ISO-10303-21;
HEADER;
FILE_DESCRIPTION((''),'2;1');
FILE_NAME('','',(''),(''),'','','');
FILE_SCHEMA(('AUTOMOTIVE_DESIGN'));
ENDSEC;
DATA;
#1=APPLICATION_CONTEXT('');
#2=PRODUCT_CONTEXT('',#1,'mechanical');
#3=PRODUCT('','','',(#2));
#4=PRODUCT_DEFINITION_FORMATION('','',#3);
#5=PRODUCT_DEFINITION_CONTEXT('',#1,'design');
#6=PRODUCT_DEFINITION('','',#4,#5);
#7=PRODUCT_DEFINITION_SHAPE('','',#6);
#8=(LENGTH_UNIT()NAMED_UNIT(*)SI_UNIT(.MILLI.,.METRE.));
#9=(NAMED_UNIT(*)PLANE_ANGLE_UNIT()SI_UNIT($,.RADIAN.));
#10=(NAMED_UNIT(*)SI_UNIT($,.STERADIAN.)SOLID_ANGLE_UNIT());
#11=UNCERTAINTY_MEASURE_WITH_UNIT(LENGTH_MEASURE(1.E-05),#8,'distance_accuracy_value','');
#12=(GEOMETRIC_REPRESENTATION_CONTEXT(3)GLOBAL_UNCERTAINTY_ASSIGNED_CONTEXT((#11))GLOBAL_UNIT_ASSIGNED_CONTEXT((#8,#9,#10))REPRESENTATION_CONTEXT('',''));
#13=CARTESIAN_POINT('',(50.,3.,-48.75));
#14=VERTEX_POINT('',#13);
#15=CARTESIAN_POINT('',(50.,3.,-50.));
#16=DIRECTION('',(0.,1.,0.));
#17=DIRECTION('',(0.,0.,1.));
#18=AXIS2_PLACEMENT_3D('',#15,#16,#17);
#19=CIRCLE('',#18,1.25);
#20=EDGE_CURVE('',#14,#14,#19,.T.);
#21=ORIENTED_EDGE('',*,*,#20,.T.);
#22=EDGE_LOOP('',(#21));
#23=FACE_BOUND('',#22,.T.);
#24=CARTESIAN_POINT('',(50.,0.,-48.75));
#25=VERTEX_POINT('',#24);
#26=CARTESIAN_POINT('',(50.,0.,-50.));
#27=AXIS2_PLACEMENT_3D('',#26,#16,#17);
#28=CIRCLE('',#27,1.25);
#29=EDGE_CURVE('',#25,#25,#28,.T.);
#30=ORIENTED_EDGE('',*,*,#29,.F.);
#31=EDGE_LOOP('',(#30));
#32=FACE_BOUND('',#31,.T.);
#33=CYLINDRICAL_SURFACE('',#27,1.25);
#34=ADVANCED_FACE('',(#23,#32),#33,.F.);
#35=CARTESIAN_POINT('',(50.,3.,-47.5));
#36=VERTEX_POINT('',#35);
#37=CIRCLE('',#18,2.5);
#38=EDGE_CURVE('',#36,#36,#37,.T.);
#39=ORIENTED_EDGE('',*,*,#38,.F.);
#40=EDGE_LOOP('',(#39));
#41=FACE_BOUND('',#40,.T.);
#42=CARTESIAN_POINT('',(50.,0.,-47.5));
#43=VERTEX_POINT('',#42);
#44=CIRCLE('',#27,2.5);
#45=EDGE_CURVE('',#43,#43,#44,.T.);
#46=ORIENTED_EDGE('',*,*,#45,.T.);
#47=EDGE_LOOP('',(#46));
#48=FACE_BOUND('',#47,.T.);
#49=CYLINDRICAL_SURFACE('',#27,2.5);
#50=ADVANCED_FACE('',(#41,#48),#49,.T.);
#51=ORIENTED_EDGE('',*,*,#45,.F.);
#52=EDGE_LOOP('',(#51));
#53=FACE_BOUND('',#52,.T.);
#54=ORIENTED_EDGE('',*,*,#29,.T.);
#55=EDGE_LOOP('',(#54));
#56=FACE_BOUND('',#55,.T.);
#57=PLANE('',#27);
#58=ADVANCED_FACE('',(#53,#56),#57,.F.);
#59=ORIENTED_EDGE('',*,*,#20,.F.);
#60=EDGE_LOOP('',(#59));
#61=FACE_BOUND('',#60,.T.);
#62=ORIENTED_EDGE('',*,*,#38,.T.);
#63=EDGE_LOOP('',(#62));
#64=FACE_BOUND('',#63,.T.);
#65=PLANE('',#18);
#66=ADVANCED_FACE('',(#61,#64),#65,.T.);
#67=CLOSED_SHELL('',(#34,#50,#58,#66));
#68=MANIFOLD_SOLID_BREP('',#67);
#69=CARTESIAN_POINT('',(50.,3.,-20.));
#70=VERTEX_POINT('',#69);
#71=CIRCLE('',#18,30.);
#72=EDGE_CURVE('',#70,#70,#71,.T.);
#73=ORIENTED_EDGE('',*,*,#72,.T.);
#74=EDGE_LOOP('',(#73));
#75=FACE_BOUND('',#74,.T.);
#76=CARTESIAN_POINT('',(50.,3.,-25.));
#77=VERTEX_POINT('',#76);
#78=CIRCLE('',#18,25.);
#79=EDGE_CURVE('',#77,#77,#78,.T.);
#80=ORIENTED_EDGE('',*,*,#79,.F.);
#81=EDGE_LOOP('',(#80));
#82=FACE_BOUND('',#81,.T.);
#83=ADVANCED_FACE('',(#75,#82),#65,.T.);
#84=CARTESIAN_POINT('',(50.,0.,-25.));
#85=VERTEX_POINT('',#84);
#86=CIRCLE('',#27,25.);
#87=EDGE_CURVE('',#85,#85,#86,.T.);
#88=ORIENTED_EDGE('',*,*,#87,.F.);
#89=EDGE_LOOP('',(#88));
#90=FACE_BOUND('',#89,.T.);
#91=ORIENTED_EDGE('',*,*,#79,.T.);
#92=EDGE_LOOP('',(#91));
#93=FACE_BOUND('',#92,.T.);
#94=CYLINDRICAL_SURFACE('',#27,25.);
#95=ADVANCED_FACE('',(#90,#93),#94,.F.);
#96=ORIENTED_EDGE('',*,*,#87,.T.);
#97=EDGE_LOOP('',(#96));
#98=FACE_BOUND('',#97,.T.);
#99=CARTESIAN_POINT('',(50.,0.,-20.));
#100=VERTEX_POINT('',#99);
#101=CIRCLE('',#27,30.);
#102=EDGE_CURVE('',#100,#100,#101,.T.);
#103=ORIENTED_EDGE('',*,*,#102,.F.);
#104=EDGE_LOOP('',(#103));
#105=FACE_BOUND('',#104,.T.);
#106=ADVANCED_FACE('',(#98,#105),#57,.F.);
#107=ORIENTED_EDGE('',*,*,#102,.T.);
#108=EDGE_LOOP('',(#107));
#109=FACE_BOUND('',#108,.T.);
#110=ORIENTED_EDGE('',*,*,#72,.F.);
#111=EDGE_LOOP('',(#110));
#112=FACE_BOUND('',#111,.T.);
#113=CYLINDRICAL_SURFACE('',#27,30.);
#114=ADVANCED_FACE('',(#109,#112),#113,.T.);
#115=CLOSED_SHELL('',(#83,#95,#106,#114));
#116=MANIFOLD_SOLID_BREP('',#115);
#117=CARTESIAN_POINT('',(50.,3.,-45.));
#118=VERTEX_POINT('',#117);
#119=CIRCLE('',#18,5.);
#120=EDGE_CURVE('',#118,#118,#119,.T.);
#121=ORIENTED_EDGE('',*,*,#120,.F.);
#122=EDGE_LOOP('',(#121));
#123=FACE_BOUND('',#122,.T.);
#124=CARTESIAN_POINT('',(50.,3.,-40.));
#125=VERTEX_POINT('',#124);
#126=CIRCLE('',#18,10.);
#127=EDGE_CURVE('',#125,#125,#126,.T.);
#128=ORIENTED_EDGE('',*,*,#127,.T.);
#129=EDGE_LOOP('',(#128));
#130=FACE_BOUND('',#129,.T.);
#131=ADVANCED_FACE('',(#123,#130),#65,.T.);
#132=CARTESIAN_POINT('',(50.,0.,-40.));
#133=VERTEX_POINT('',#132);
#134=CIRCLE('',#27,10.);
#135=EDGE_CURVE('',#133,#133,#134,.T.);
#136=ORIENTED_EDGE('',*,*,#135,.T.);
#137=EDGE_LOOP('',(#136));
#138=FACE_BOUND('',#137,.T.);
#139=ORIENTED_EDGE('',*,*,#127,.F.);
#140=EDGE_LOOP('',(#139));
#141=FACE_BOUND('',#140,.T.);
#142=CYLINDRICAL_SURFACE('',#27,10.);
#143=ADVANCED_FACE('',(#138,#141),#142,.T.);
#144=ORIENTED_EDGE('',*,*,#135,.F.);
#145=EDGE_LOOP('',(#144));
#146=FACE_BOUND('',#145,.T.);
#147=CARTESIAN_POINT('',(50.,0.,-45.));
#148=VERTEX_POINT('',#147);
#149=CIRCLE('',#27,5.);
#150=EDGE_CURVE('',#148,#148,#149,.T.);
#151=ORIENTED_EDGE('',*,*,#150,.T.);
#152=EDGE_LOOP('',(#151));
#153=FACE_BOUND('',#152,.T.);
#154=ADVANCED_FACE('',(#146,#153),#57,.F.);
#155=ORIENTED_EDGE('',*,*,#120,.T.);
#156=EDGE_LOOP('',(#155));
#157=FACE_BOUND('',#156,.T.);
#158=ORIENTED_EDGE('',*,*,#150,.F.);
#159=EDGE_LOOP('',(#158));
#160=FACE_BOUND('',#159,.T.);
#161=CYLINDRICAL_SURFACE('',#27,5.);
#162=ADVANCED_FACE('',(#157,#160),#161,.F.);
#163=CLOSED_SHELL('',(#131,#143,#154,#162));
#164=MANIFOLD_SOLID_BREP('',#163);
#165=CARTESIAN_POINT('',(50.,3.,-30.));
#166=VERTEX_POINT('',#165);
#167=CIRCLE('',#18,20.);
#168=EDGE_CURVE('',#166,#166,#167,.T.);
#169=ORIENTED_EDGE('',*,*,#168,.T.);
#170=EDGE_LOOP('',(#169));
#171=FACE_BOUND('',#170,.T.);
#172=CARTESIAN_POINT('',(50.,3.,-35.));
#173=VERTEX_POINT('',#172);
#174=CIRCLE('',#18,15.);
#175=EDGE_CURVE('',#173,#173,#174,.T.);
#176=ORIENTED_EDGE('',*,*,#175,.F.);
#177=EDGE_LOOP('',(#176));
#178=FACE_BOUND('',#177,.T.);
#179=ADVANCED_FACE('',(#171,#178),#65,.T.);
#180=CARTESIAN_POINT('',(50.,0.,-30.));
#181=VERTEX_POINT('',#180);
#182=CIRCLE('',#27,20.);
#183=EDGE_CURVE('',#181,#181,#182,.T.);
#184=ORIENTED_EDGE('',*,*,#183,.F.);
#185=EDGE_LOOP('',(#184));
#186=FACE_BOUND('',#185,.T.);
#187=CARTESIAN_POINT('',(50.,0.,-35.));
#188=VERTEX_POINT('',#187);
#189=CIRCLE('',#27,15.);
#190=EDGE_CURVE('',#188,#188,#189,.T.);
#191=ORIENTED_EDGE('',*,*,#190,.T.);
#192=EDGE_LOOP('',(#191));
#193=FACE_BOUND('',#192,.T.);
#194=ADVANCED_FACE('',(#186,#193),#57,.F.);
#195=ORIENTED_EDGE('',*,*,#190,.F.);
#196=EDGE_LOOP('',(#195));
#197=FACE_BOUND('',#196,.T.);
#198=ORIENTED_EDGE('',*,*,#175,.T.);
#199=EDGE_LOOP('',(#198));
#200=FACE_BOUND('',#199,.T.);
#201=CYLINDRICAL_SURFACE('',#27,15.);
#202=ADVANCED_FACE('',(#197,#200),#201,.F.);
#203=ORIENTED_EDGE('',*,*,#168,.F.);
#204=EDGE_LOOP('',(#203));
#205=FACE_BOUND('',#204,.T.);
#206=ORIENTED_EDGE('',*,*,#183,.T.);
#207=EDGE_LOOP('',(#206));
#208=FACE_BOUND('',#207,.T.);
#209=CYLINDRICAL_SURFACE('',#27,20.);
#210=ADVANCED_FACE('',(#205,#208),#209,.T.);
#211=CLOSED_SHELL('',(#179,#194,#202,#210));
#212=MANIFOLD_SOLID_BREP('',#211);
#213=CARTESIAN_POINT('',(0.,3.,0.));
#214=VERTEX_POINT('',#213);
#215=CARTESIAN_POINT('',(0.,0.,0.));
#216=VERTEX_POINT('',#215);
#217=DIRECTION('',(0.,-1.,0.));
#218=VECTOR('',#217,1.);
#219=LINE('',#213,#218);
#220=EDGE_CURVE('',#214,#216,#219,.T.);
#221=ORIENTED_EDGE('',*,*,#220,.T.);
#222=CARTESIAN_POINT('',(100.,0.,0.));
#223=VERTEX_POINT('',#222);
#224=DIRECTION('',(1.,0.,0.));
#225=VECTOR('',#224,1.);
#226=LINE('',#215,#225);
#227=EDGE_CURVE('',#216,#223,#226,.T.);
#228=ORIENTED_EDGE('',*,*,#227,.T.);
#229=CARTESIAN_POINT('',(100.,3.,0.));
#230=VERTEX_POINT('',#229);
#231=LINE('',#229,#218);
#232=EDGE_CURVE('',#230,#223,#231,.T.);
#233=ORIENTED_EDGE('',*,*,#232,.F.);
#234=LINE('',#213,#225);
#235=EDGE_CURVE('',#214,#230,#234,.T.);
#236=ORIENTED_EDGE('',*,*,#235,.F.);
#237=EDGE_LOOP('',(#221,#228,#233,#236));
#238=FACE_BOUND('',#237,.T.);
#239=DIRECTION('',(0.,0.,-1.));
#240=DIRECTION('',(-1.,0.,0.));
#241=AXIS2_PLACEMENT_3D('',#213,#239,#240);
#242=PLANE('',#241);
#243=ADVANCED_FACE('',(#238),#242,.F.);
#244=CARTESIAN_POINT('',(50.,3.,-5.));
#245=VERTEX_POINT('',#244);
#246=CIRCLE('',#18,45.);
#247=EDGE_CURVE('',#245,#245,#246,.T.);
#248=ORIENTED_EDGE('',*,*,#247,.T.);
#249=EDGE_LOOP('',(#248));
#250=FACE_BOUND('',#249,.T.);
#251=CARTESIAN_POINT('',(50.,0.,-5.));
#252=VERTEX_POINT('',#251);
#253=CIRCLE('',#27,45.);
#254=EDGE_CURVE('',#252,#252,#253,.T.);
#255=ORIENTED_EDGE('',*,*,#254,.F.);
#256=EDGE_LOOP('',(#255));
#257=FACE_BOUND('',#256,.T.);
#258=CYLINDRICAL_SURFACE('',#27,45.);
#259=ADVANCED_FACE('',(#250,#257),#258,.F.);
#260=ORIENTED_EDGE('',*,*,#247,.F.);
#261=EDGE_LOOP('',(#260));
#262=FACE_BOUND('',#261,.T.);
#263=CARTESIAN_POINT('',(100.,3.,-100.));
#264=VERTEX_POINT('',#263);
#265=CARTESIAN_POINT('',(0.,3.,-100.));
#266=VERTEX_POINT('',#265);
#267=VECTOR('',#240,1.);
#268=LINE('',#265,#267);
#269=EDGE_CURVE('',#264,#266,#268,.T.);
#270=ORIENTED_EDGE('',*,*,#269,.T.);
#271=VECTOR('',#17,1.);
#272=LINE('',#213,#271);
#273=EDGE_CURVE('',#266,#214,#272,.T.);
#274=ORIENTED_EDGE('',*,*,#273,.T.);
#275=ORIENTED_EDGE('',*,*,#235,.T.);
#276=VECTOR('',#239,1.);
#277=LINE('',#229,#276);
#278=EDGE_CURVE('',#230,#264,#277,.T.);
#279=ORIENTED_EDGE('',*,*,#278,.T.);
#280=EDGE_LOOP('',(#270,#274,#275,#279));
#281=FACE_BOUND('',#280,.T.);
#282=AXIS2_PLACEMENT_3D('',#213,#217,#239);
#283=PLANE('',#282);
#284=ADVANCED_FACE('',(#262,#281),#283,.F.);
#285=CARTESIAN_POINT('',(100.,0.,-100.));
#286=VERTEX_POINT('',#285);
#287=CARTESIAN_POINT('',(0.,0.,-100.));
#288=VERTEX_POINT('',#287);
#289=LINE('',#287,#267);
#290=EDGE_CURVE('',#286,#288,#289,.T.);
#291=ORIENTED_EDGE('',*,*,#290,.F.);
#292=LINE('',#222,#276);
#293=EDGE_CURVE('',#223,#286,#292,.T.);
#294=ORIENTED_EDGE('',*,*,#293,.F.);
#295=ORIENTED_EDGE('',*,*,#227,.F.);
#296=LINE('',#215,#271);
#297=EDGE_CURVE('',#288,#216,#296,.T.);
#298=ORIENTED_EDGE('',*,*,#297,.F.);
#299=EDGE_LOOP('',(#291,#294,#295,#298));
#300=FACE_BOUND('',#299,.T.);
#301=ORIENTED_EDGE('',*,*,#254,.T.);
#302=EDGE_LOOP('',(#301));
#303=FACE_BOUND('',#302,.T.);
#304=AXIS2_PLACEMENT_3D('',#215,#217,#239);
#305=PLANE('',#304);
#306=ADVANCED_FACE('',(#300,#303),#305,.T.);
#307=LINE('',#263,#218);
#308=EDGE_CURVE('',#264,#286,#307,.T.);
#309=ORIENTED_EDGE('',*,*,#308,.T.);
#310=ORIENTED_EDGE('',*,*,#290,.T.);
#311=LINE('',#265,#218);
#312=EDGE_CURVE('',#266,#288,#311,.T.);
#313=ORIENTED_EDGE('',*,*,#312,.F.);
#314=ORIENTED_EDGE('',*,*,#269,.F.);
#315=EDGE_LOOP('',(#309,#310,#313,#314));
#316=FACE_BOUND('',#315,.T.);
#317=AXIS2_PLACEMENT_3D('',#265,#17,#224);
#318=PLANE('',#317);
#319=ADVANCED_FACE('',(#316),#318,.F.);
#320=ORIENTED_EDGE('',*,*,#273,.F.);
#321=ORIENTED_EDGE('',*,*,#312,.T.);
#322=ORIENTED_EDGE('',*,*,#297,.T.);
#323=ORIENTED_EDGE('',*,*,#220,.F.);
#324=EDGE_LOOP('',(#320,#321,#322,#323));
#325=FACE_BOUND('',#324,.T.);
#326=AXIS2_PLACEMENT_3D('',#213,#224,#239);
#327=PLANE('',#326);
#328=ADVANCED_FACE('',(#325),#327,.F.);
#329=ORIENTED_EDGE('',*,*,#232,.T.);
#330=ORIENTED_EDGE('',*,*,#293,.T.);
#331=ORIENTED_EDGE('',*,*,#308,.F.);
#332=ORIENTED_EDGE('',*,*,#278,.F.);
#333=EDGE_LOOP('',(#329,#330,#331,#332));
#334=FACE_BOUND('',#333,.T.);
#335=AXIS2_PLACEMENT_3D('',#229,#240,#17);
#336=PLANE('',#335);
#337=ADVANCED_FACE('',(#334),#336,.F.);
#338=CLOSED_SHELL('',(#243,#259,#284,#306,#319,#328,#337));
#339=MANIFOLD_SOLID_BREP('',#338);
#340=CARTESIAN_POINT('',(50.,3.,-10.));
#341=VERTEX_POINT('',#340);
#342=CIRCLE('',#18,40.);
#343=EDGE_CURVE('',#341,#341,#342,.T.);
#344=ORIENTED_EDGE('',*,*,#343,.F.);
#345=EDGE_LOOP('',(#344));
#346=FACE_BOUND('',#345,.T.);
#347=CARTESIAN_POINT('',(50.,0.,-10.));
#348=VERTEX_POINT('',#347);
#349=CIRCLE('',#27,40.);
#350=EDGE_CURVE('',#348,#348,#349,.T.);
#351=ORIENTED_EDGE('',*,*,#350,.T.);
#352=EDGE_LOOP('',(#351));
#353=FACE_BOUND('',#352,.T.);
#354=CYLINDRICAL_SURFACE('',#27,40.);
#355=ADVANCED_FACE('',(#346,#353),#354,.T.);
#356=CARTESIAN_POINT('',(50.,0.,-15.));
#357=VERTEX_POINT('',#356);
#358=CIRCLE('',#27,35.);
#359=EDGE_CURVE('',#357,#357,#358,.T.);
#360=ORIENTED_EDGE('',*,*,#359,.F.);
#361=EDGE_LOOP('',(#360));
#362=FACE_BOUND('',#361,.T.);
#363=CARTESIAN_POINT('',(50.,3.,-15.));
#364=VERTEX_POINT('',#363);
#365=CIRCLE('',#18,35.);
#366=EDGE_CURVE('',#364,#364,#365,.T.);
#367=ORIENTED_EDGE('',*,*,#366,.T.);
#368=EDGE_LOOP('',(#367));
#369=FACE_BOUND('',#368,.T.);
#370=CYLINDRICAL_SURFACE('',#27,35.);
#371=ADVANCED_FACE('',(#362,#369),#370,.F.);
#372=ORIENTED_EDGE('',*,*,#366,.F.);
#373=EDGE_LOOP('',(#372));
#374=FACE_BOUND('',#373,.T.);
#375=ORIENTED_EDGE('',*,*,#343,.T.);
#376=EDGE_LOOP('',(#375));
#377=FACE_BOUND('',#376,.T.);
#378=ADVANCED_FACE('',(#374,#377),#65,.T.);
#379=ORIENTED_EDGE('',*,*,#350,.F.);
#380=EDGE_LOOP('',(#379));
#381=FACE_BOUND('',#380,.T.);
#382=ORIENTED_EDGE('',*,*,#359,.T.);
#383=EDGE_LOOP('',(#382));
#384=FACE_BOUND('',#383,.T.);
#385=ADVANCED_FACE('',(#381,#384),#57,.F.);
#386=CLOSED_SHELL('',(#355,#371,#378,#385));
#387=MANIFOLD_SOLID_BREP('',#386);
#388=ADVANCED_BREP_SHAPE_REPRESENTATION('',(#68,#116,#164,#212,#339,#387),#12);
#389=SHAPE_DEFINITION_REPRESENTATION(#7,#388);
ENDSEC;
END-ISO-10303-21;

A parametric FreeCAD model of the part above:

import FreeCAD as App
import Part
import Sketcher
from FreeCAD import Vector
Q = App.Units.Quantity

doc = App.newDocument("Part")
body = doc.addObject("PartDesign::Body", "Body")

sketch1 = body.newObject("Sketcher::SketchObject", "Sketch")
sketch1.AttachmentSupport = (doc.getObject("XZ_Plane"), [""])
sketch1.MapMode = "FlatFace"
sketch1.addGeometry(Part.LineSegment(Vector(0, -100, 0), Vector(0, 0, 0)), False)
sketch1.addGeometry(Part.LineSegment(Vector(0, 0, 0), Vector(100, 0, 0)), False)
sketch1.addGeometry(Part.LineSegment(Vector(100, 0, 0), Vector(100, -100, 0)), False)
sketch1.addGeometry(Part.LineSegment(Vector(100, -100, 0), Vector(0, -100, 0)), False)
sketch1.addConstraint(Sketcher.Constraint("Coincident", 0, 2, 1, 1))
sketch1.addConstraint(Sketcher.Constraint("Coincident", 1, 2, 2, 1))
sketch1.addConstraint(Sketcher.Constraint("Coincident", 2, 2, 3, 1))
sketch1.addConstraint(Sketcher.Constraint("Coincident", 3, 2, 0, 1))
sketch1.addConstraint(Sketcher.Constraint("Vertical", 0))
sketch1.addConstraint(Sketcher.Constraint("Horizontal", 1))
sketch1.addConstraint(Sketcher.Constraint("Vertical", 2))
sketch1.addConstraint(Sketcher.Constraint("Horizontal", 3))
sketch1.addConstraint(Sketcher.Constraint("Coincident", 0, 2, -1, 1))
sketch1.addConstraint(Sketcher.Constraint("Equal", 3, 0))
sketch1.addConstraint(Sketcher.Constraint("DistanceX", 1, 1, 1, 2, Q("100 mm")))
pad1 = body.newObject("PartDesign::Pad", "Pad")
pad1.Profile = sketch1
pad1.Length = 3
pad1.Reversed = True

sketch2 = body.newObject("Sketcher::SketchObject", "Sketch001")
sketch2.AttachmentSupport = (doc.getObject("XZ_Plane"), [""])
sketch2.MapMode = "FlatFace"
sketch2.AttachmentOffset = App.Placement(Vector(0, 0, -3), App.Rotation())
sketch2.addGeometry(Part.Circle(Vector(50, -50, 0), Vector(0, 0, 1), 45), False)
sketch2.addConstraint(Sketcher.Constraint("Diameter", 0, Q("90 mm")))
sketch2.addConstraint(Sketcher.Constraint("DistanceX", -1, 1, 0, 3, Q("50 mm")))
sketch2.addConstraint(Sketcher.Constraint("DistanceY", 0, 3, -1, 1, Q("50 mm")))
pocket1 = body.newObject("PartDesign::Pocket", "Pocket")
pocket1.Profile = sketch2
pocket1.Length = 3
pocket1.Reversed = True
body2 = doc.addObject("PartDesign::Body", "Body001")

sketch3 = body2.newObject("Sketcher::SketchObject", "Sketch002")
sketch3.AttachmentSupport = (doc.getObject("XZ_Plane001"), [""])
sketch3.MapMode = "FlatFace"
sketch3.AttachmentOffset = App.Placement(Vector(0, 0, -3), App.Rotation())
sketch3.addGeometry(Part.Circle(Vector(50, -50, 0), Vector(0, 0, 1), 40), False)
sketch3.addConstraint(Sketcher.Constraint("Diameter", 0, Q("80 mm")))
sketch3.addConstraint(Sketcher.Constraint("DistanceX", -1, 1, 0, 3, Q("50 mm")))
sketch3.addConstraint(Sketcher.Constraint("DistanceY", 0, 3, -1, 1, Q("50 mm")))
pad2 = body2.newObject("PartDesign::Pad", "Pad001")
pad2.Profile = sketch3
pad2.Length = 3

sketch4 = body2.newObject("Sketcher::SketchObject", "Sketch003")
sketch4.AttachmentSupport = (doc.getObject("XZ_Plane001"), [""])
sketch4.MapMode = "FlatFace"
sketch4.AttachmentOffset = App.Placement(Vector(0, 0, -3), App.Rotation())
sketch4.addGeometry(Part.Circle(Vector(50, -50, 0), Vector(0, 0, 1), 35), False)
sketch4.addConstraint(Sketcher.Constraint("Diameter", 0, Q("70 mm")))
sketch4.addConstraint(Sketcher.Constraint("DistanceX", -1, 1, 0, 3, Q("50 mm")))
sketch4.addConstraint(Sketcher.Constraint("DistanceY", 0, 3, -1, 1, Q("50 mm")))
pocket2 = body2.newObject("PartDesign::Pocket", "Pocket001")
pocket2.Profile = sketch4
pocket2.Length = 3
pocket2.Reversed = True
body3 = doc.addObject("PartDesign::Body", "Body002")

sketch5 = body3.newObject("Sketcher::SketchObject", "Sketch004")
sketch5.AttachmentSupport = (doc.getObject("XZ_Plane002"), [""])
sketch5.MapMode = "FlatFace"
sketch5.AttachmentOffset = App.Placement(Vector(0, 0, -3), App.Rotation())
sketch5.addGeometry(Part.Circle(Vector(50, -50, 0), Vector(0, 0, 1), 30), False)
sketch5.addConstraint(Sketcher.Constraint("Diameter", 0, Q("60 mm")))
sketch5.addConstraint(Sketcher.Constraint("DistanceX", -1, 1, 0, 3, Q("50 mm")))
sketch5.addConstraint(Sketcher.Constraint("DistanceY", 0, 3, -1, 1, Q("50 mm")))
pad3 = body3.newObject("PartDesign::Pad", "Pad002")
pad3.Profile = sketch5
pad3.Length = 3

sketch6 = body3.newObject("Sketcher::SketchObject", "Sketch005")
sketch6.AttachmentSupport = (doc.getObject("XZ_Plane002"), [""])
sketch6.MapMode = "FlatFace"
sketch6.AttachmentOffset = App.Placement(Vector(0, 0, -3), App.Rotation())
sketch6.addGeometry(Part.Circle(Vector(50, -50, 0), Vector(0, 0, 1), 25), False)
sketch6.addConstraint(Sketcher.Constraint("Diameter", 0, Q("50 mm")))
sketch6.addConstraint(Sketcher.Constraint("DistanceX", -1, 1, 0, 3, Q("50 mm")))
sketch6.addConstraint(Sketcher.Constraint("DistanceY", 0, 3, -1, 1, Q("50 mm")))
pocket3 = body3.newObject("PartDesign::Pocket", "Pocket002")
pocket3.Profile = sketch6
pocket3.Length = 3
pocket3.Reversed = True
body4 = doc.addObject("PartDesign::Body", "Body003")

sketch7 = body4.newObject("Sketcher::SketchObject", "Sketch006")
sketch7.AttachmentSupport = (doc.getObject("XZ_Plane003"), [""])
sketch7.MapMode = "FlatFace"
sketch7.AttachmentOffset = App.Placement(Vector(0, 0, -3), App.Rotation())
sketch7.addGeometry(Part.Circle(Vector(50, -50, 0), Vector(0, 0, 1), 20), False)
sketch7.addConstraint(Sketcher.Constraint("Diameter", 0, Q("40 mm")))
sketch7.addConstraint(Sketcher.Constraint("DistanceX", -1, 1, 0, 3, Q("50 mm")))
sketch7.addConstraint(Sketcher.Constraint("DistanceY", 0, 3, -1, 1, Q("50 mm")))
pad4 = body4.newObject("PartDesign::Pad", "Pad003")
pad4.Profile = sketch7
pad4.Length = 3

sketch8 = body4.newObject("Sketcher::SketchObject", "Sketch007")
sketch8.AttachmentSupport = (doc.getObject("XZ_Plane003"), [""])
sketch8.MapMode = "FlatFace"
sketch8.AttachmentOffset = App.Placement(Vector(0, 0, -3), App.Rotation())
sketch8.addGeometry(Part.Circle(Vector(50, -50, 0), Vector(0, 0, 1), 15), False)
sketch8.addConstraint(Sketcher.Constraint("Diameter", 0, Q("30 mm")))
sketch8.addConstraint(Sketcher.Constraint("DistanceX", -1, 1, 0, 3, Q("50 mm")))
sketch8.addConstraint(Sketcher.Constraint("DistanceY", 0, 3, -1, 1, Q("50 mm")))
pocket4 = body4.newObject("PartDesign::Pocket", "Pocket003")
pocket4.Profile = sketch8
pocket4.Length = 3
pocket4.Reversed = True
body5 = doc.addObject("PartDesign::Body", "Body004")

sketch9 = body5.newObject("Sketcher::SketchObject", "Sketch008")
sketch9.AttachmentSupport = (doc.getObject("XZ_Plane004"), [""])
sketch9.MapMode = "FlatFace"
sketch9.AttachmentOffset = App.Placement(Vector(0, 0, -3), App.Rotation())
sketch9.addGeometry(Part.Circle(Vector(50, -50, 0), Vector(0, 0, 1), 10), False)
sketch9.addConstraint(Sketcher.Constraint("Diameter", 0, Q("20 mm")))
sketch9.addConstraint(Sketcher.Constraint("DistanceX", -1, 1, 0, 3, Q("50 mm")))
sketch9.addConstraint(Sketcher.Constraint("DistanceY", 0, 3, -1, 1, Q("50 mm")))
pad5 = body5.newObject("PartDesign::Pad", "Pad004")
pad5.Profile = sketch9
pad5.Length = 3

sketch10 = body5.newObject("Sketcher::SketchObject", "Sketch009")
sketch10.AttachmentSupport = (doc.getObject("XZ_Plane004"), [""])
sketch10.MapMode = "FlatFace"
sketch10.AttachmentOffset = App.Placement(Vector(0, 0, -3), App.Rotation())
sketch10.addGeometry(Part.Circle(Vector(50, -50, 0), Vector(0, 0, 1), 5), False)
sketch10.addConstraint(Sketcher.Constraint("Diameter", 0, Q("10 mm")))
sketch10.addConstraint(Sketcher.Constraint("DistanceX", -1, 1, 0, 3, Q("50 mm")))
sketch10.addConstraint(Sketcher.Constraint("DistanceY", 0, 3, -1, 1, Q("50 mm")))
pocket5 = body5.newObject("PartDesign::Pocket", "Pocket004")
pocket5.Profile = sketch10
pocket5.Length = 3
pocket5.Reversed = True
body6 = doc.addObject("PartDesign::Body", "Body005")

sketch11 = body6.newObject("Sketcher::SketchObject", "Sketch010")
sketch11.AttachmentSupport = (doc.getObject("XZ_Plane005"), [""])
sketch11.MapMode = "FlatFace"
sketch11.AttachmentOffset = App.Placement(Vector(0, 0, -3), App.Rotation())
sketch11.addGeometry(Part.Circle(Vector(50, -50, 0), Vector(0, 0, 1), 2.5), False)
sketch11.addConstraint(Sketcher.Constraint("Diameter", 0, Q("5 mm")))
sketch11.addConstraint(Sketcher.Constraint("DistanceX", -1, 1, 0, 3, Q("50 mm")))
sketch11.addConstraint(Sketcher.Constraint("DistanceY", 0, 3, -1, 1, Q("50 mm")))
pad6 = body6.newObject("PartDesign::Pad", "Pad005")
pad6.Profile = sketch11
pad6.Length = 3

sketch12 = body6.newObject("Sketcher::SketchObject", "Sketch011")
sketch12.AttachmentSupport = (doc.getObject("XZ_Plane005"), [""])
sketch12.MapMode = "FlatFace"
sketch12.AttachmentOffset = App.Placement(Vector(0, 0, -3), App.Rotation())
sketch12.addGeometry(Part.Circle(Vector(50, -50, 0), Vector(0, 0, 1), 1.2), False)
sketch12.addConstraint(Sketcher.Constraint("Diameter", 0, Q("2.5 mm")))
sketch12.addConstraint(Sketcher.Constraint("DistanceX", -1, 1, 0, 3, Q("50 mm")))
sketch12.addConstraint(Sketcher.Constraint("DistanceY", 0, 3, -1, 1, Q("50 mm")))
pocket6 = body6.newObject("PartDesign::Pocket", "Pocket005")
pocket6.Profile = sketch12
pocket6.Length = 3
pocket6.Reversed = True

doc.recompute()
